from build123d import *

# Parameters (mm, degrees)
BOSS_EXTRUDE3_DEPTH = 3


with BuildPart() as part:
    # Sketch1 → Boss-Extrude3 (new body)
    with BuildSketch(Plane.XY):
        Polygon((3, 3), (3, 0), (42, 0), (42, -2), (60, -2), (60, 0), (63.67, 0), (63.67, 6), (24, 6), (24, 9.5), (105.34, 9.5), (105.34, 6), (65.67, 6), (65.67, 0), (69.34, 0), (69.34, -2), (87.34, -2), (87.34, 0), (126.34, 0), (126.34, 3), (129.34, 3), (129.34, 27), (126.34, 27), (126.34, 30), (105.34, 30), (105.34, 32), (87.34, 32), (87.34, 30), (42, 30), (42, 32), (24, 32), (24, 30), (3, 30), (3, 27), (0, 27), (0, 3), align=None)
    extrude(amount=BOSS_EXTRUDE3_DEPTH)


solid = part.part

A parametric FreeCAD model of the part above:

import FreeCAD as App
import Part
import Sketcher


def add_polygon(sketch, points):
    """Adds a closed chain of lines whose ends are joined by coincident constraints."""
    first, n = sketch.GeometryCount, len(points)
    for a, b in zip(points, points[1:] + points[:1]):
        sketch.addGeometry(Part.LineSegment(App.Vector(*a, 0), App.Vector(*b, 0)), False)
    for i in range(n):
        sketch.addConstraint(Sketcher.Constraint("Coincident", first + i, 2, first + (i + 1) % n, 1))

doc = App.newDocument("Part")
body = doc.addObject("PartDesign::Body", "Body")

# Sketch on XY plane
sketch1 = body.newObject("Sketcher::SketchObject", "Sketch")
sketch1.AttachmentSupport = (doc.getObject("XY_Plane"), [""])
sketch1.MapMode = "FlatFace"
add_polygon(sketch1, [(3, 3), (3, 0), (42, 0), (42, -2), (60, -2), (60, 0), (63.7, 0), (63.7, 6), (24, 6), (24, 9.5), (105.3, 9.5), (105.3, 6), (65.7, 6), (65.7, 0), (69.3, 0), (69.3, -2), (87.3, -2), (87.3, 0), (126.3, 0), (126.3, 3), (129.3, 3), (129.3, 27), (126.3, 27), (126.3, 30), (105.3, 30), (105.3, 32), (87.3, 32), (87.3, 30), (42, 30), (42, 32), (24, 32), (24, 30), (3, 30), (3, 27), (0, 27), (0, 3)])  # lines 0-35
sketch1.addConstraint(Sketcher.Constraint("Vertical", 0))
sketch1.addConstraint(Sketcher.Constraint("Horizontal", 1))
sketch1.addConstraint(Sketcher.Constraint("Vertical", 2))
sketch1.addConstraint(Sketcher.Constraint("Horizontal", 3))
sketch1.addConstraint(Sketcher.Constraint("Vertical", 4))
sketch1.addConstraint(Sketcher.Constraint("Horizontal", 5))
sketch1.addConstraint(Sketcher.Constraint("Vertical", 6))
sketch1.addConstraint(Sketcher.Constraint("Horizontal", 7))
sketch1.addConstraint(Sketcher.Constraint("Vertical", 8))
sketch1.addConstraint(Sketcher.Constraint("Horizontal", 9))
sketch1.addConstraint(Sketcher.Constraint("Vertical", 10))
sketch1.addConstraint(Sketcher.Constraint("Horizontal", 11))
sketch1.addConstraint(Sketcher.Constraint("Vertical", 12))
sketch1.addConstraint(Sketcher.Constraint("Horizontal", 13))
sketch1.addConstraint(Sketcher.Constraint("Vertical", 14))
sketch1.addConstraint(Sketcher.Constraint("Horizontal", 15))
sketch1.addConstraint(Sketcher.Constraint("Vertical", 16))
sketch1.addConstraint(Sketcher.Constraint("Horizontal", 17))
sketch1.addConstraint(Sketcher.Constraint("Vertical", 18))
sketch1.addConstraint(Sketcher.Constraint("Horizontal", 19))
sketch1.addConstraint(Sketcher.Constraint("Vertical", 20))
sketch1.addConstraint(Sketcher.Constraint("Horizontal", 21))
sketch1.addConstraint(Sketcher.Constraint("Vertical", 22))
sketch1.addConstraint(Sketcher.Constraint("Horizontal", 23))
sketch1.addConstraint(Sketcher.Constraint("Vertical", 24))
sketch1.addConstraint(Sketcher.Constraint("Horizontal", 25))
sketch1.addConstraint(Sketcher.Constraint("Vertical", 26))
sketch1.addConstraint(Sketcher.Constraint("Horizontal", 27))
sketch1.addConstraint(Sketcher.Constraint("Vertical", 28))
sketch1.addConstraint(Sketcher.Constraint("Horizontal", 29))
sketch1.addConstraint(Sketcher.Constraint("Vertical", 30))
sketch1.addConstraint(Sketcher.Constraint("Horizontal", 31))
sketch1.addConstraint(Sketcher.Constraint("Vertical", 32))
sketch1.addConstraint(Sketcher.Constraint("Horizontal", 33))
sketch1.addConstraint(Sketcher.Constraint("Vertical", 34))
sketch1.addConstraint(Sketcher.Constraint("Horizontal", 35))
sketch1.addConstraint(Sketcher.Constraint("PointOnObject", 0, 2, -1))
sketch1.addConstraint(Sketcher.Constraint("PointOnObject", 4, 2, -1))
sketch1.addConstraint(Sketcher.Constraint("PointOnObject", 12, 2, -1))
sketch1.addConstraint(Sketcher.Constraint("PointOnObject", 16, 2, -1))
sketch1.addConstraint(Sketcher.Constraint("PointOnObject", 33, 2, -2))
sketch1.addConstraint(Sketcher.Constraint("Horizontal", 7, 2, 10, 2))
sketch1.addConstraint(Sketcher.Constraint("Horizontal", 3, 2, 14, 2))
sketch1.addConstraint(Sketcher.Constraint("Horizontal", 23, 2, 26, 2))
sketch1.addConstraint(Sketcher.Constraint("Horizontal", 25, 2, 28, 2))
sketch1.addConstraint(Sketcher.Constraint("Horizontal", 27, 2, 30, 2))
sketch1.addConstraint(Sketcher.Constraint("Horizontal", 21, 2, 32, 2))
sketch1.addConstraint(Sketcher.Constraint("Horizontal", 19, 2, 34, 2))
sketch1.addConstraint(Sketcher.Constraint("Vertical", 18, 2, 21, 2))
sketch1.addConstraint(Sketcher.Constraint("Vertical", 10, 2, 23, 2))
sketch1.addConstraint(Sketcher.Constraint("Vertical", 16, 2, 25, 2))
sketch1.addConstraint(Sketcher.Constraint("Vertical", 2, 2, 27, 2))
sketch1.addConstraint(Sketcher.Constraint("Vertical", 8, 2, 29, 2))
sketch1.addConstraint(Sketcher.Constraint("Vertical", 0, 2, 31, 2))
sketch1.addConstraint(Sketcher.Constraint("Equal", 7, 11))
sketch1.addConstraint(Sketcher.Constraint("Equal", 5, 13))
sketch1.addConstraint(Sketcher.Constraint("Equal", 3, 15))
sketch1.addConstraint(Sketcher.Constraint("Equal", 1, 17))
sketch1.addConstraint(Sketcher.Constraint("Equal", 15, 25))
sketch1.addConstraint(Sketcher.Constraint("Equal", 21, 33))
sketch1.addConstraint(Sketcher.Constraint("Equal", 35, 0))
sketch1.addConstraint(Sketcher.Constraint("Equal", 18, 22))
sketch1.addConstraint(Sketcher.Constraint("Equal", 16, 24))
sketch1.addConstraint(Sketcher.Constraint("DistanceX", 1, 1, 1, 2, 39.0))
sketch1.addConstraint(Sketcher.Constraint("DistanceX", 3, 1, 3, 2, 18.0))
sketch1.addConstraint(Sketcher.Constraint("DistanceX", 19, 1, 19, 2, 3.0))
sketch1.addConstraint(Sketcher.Constraint("DistanceY", 2, 2, 2, 1, 2.0))
sketch1.addConstraint(Sketcher.Constraint("DistanceY", 6, 1, 6, 2, 6.0))
sketch1.addConstraint(Sketcher.Constraint("DistanceY", 20, 1, 20, 2, 24.0))
sketch1.addConstraint(Sketcher.Constraint("DistanceY", 8, 1, 8, 2, 3.5))
sketch1.addConstraint(Sketcher.Constraint("DistanceX", 6, 2, 11, 2, 2.0))
sketch1.addConstraint(Sketcher.Constraint("DistanceX", 5, 1, 5, 2, 3.67))
pad1 = body.newObject("PartDesign::Pad", "Pad")
pad1.Profile = sketch1
pad1.Length = 3

doc.recompute()
